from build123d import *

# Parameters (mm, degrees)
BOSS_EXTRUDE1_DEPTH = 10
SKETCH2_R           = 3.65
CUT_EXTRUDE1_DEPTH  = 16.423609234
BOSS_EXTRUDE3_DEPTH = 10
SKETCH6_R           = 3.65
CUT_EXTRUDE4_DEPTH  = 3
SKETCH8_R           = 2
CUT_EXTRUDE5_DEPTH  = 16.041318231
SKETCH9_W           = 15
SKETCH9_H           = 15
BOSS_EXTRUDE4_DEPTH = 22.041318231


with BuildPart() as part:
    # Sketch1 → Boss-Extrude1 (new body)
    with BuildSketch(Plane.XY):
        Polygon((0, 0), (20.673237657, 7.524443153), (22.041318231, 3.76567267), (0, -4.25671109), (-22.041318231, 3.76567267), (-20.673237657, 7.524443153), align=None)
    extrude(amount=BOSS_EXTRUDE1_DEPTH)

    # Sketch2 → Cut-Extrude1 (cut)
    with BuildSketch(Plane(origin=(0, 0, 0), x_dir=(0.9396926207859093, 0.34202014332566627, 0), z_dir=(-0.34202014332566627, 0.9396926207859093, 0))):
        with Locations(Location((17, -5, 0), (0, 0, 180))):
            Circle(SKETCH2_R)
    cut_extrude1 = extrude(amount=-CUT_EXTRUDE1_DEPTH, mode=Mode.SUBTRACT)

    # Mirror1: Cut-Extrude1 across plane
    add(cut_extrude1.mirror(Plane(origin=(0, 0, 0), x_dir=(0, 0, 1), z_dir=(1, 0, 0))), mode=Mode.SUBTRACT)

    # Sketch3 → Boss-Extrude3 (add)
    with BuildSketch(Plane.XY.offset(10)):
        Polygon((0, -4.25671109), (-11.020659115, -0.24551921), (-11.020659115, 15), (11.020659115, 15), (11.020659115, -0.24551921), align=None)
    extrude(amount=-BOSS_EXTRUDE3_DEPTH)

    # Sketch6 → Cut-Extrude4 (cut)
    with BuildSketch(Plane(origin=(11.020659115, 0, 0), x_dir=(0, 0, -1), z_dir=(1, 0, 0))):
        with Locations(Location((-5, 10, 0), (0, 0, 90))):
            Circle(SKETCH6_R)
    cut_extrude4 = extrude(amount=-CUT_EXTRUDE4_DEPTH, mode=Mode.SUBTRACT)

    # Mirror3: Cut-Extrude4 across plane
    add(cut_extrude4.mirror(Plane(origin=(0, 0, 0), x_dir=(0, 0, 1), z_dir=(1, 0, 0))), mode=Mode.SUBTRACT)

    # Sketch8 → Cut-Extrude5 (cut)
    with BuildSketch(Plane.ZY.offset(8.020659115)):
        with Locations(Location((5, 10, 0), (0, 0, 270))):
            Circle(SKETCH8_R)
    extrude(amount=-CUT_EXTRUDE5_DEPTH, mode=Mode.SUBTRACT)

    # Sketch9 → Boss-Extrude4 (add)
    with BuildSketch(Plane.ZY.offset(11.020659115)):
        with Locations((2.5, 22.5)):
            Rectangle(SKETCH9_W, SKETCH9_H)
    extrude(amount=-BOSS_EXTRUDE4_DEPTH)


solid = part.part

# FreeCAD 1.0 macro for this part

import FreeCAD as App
import Part
import Sketcher
Q = App.Units.Quantity


def add_polygon(sketch, points):
    """Adds a closed chain of lines whose ends are joined by coincident constraints."""
    first, n = sketch.GeometryCount, len(points)
    for a, b in zip(points, points[1:] + points[:1]):
        sketch.addGeometry(Part.LineSegment(App.Vector(*a, 0), App.Vector(*b, 0)), False)
    for i in range(n):
        sketch.addConstraint(Sketcher.Constraint("Coincident", first + i, 2, first + (i + 1) % n, 1))

doc = App.newDocument("Part")
body = doc.addObject("PartDesign::Body", "Body")

# Sketch on XY plane
sketch1 = body.newObject("Sketcher::SketchObject", "Sketch")
sketch1.AttachmentSupport = (doc.getObject("XY_Plane"), [""])
sketch1.MapMode = "FlatFace"
add_polygon(sketch1, [(20.7, 7.5), (0, 0), (-20.7, 7.5), (-22, 3.8), (0, -4.3), (22, 3.8)])  # lines 0-5
sketch1.addConstraint([
    Sketcher.Constraint("Coincident", 0, 2, -1, 1),
    Sketcher.Constraint("Symmetric", 2, 2, 4, 2, -2),
    Sketcher.Constraint("Symmetric", 1, 2, 5, 2, -2),
    Sketcher.Constraint("PointOnObject", 3, 2, -2),
    Sketcher.Constraint("Perpendicular", 1, 2),
    Sketcher.Constraint("Perpendicular", 2, 3),
    Sketcher.Constraint("Angle", 0, Q("-160 deg")),
    Sketcher.Constraint("Distance", 0, 22.0),
    Sketcher.Constraint("Distance", 2, 4.0),
])
pad1 = body.newObject("PartDesign::Pad", "Pad")
pad1.Profile = sketch1
pad1.Length = 10

# Sketch on an angled plane
sketch2 = body.newObject("Sketcher::SketchObject", "Sketch001")
sketch2.Placement = App.Placement(App.Vector(0, 0, 0), App.Rotation(App.Vector(0.939692621, 0.342020143, 0), App.Vector(0, 0, -1), App.Vector(-0.342020143, 0.939692621, 0), "ZXY"))
sketch2.addGeometry(Part.Circle(App.Vector(17, -5, 0), App.Vector(0, 0, 1), 3.6), False)
sketch2.addConstraint([
    Sketcher.Constraint("Diameter", 0, 7.3),
    Sketcher.Constraint("DistanceX", -1, 1, 0, 3, 17.0),
    Sketcher.Constraint("DistanceY", 0, 3, -1, 1, 5.0),
])
pocket1 = body.newObject("PartDesign::Pocket", "Pocket")
pocket1.Profile = sketch2
pocket1.Length = 16.423609
doc.recompute()

mirrored = body.newObject("PartDesign::Mirrored", "Mirrored")
mirrored.Originals = [pocket1]
mirrored.MirrorPlane = (doc.getObject("YZ_Plane"), [""])
body.Tip = mirrored

# Sketch on XY plane
sketch3 = body.newObject("Sketcher::SketchObject", "Sketch002")
sketch3.AttachmentSupport = (doc.getObject("XY_Plane"), [""])
sketch3.MapMode = "FlatFace"
sketch3.AttachmentOffset = App.Placement(App.Vector(0, 0, 10), App.Rotation())
add_polygon(sketch3, [(-11, 0), (0, -4), (11, 0), (11, 15), (-11, 15)])  # lines 0-4
sketch3.addConstraint([
    Sketcher.Constraint("Vertical", 2),
    Sketcher.Constraint("Horizontal", 3),
    Sketcher.Constraint("Vertical", 4),
    Sketcher.Constraint("Symmetric", 1, 2, 4, 2, -2),
    Sketcher.Constraint("PointOnObject", 0, 2, -2),
    Sketcher.Constraint("Angle", 0, Q("-20 deg")),
    Sketcher.Constraint("DistanceY", -1, 1, 2, 2, 15.0),
    Sketcher.Constraint("DistanceX", 3, 2, 3, 1, 22.041318),
    Sketcher.Constraint("DistanceY", 2, 1, 2, 2, 15.245519),
])
pad2 = body.newObject("PartDesign::Pad", "Pad001")
pad2.Profile = sketch3
pad2.Length = 10
pad2.Reversed = True

# Sketch on YZ plane
sketch4 = body.newObject("Sketcher::SketchObject", "Sketch003")
sketch4.AttachmentSupport = (doc.getObject("YZ_Plane"), [""])
sketch4.MapMode = "FlatFace"
sketch4.AttachmentOffset = App.Placement(App.Vector(0, 0, 11.020659), App.Rotation())
sketch4.addGeometry(Part.Circle(App.Vector(10, 5, 0), App.Vector(0, 0, 1), 3.6), False)
sketch4.addConstraint([
    Sketcher.Constraint("Diameter", 0, 7.3),
    Sketcher.Constraint("DistanceX", -1, 1, 0, 3, 10.0),
    Sketcher.Constraint("DistanceY", -1, 1, 0, 3, 5.0),
])
pocket2 = body.newObject("PartDesign::Pocket", "Pocket001")
pocket2.Profile = sketch4
pocket2.Length = 3
doc.recompute()

mirrored2 = body.newObject("PartDesign::Mirrored", "Mirrored001")
mirrored2.Originals = [pocket2]
mirrored2.MirrorPlane = (doc.getObject("YZ_Plane"), [""])
body.Tip = mirrored2

# Sketch on YZ plane
sketch5 = body.newObject("Sketcher::SketchObject", "Sketch004")
sketch5.AttachmentSupport = (doc.getObject("YZ_Plane"), [""])
sketch5.MapMode = "FlatFace"
sketch5.AttachmentOffset = App.Placement(App.Vector(0, 0, -8.020659), App.Rotation())
sketch5.addGeometry(Part.Circle(App.Vector(10, 5, 0), App.Vector(0, 0, 1), 2), False)
sketch5.addConstraint([
    Sketcher.Constraint("Diameter", 0, 4.0),
    Sketcher.Constraint("DistanceX", -1, 1, 0, 3, 10.0),
    Sketcher.Constraint("DistanceY", -1, 1, 0, 3, 5.0),
])
pocket3 = body.newObject("PartDesign::Pocket", "Pocket002")
pocket3.Profile = sketch5
pocket3.Length = 16.041318
pocket3.Reversed = True

# Sketch on YZ plane
sketch6 = body.newObject("Sketcher::SketchObject", "Sketch005")
sketch6.AttachmentSupport = (doc.getObject("YZ_Plane"), [""])
sketch6.MapMode = "FlatFace"
sketch6.AttachmentOffset = App.Placement(App.Vector(0, 0, -11.020659), App.Rotation())
add_polygon(sketch6, [(30, -5), (15, -5), (15, 10), (30, 10)])  # lines 0-3
sketch6.addConstraint([
    Sketcher.Constraint("Horizontal", 0),
    Sketcher.Constraint("Vertical", 1),
    Sketcher.Constraint("Horizontal", 2),
    Sketcher.Constraint("Vertical", 3),
    Sketcher.Constraint("Equal", 2, 1),
    Sketcher.Constraint("DistanceX", 0, 2, 0, 1, 15.0),
    Sketcher.Constraint("DistanceX", -1, 1, 0, 2, 15.0),
    Sketcher.Constraint("DistanceY", 0, 2, -1, 1, 5.0),
])
pad3 = body.newObject("PartDesign::Pad", "Pad002")
pad3.Profile = sketch6
pad3.Length = 22.041318

doc.recompute()
